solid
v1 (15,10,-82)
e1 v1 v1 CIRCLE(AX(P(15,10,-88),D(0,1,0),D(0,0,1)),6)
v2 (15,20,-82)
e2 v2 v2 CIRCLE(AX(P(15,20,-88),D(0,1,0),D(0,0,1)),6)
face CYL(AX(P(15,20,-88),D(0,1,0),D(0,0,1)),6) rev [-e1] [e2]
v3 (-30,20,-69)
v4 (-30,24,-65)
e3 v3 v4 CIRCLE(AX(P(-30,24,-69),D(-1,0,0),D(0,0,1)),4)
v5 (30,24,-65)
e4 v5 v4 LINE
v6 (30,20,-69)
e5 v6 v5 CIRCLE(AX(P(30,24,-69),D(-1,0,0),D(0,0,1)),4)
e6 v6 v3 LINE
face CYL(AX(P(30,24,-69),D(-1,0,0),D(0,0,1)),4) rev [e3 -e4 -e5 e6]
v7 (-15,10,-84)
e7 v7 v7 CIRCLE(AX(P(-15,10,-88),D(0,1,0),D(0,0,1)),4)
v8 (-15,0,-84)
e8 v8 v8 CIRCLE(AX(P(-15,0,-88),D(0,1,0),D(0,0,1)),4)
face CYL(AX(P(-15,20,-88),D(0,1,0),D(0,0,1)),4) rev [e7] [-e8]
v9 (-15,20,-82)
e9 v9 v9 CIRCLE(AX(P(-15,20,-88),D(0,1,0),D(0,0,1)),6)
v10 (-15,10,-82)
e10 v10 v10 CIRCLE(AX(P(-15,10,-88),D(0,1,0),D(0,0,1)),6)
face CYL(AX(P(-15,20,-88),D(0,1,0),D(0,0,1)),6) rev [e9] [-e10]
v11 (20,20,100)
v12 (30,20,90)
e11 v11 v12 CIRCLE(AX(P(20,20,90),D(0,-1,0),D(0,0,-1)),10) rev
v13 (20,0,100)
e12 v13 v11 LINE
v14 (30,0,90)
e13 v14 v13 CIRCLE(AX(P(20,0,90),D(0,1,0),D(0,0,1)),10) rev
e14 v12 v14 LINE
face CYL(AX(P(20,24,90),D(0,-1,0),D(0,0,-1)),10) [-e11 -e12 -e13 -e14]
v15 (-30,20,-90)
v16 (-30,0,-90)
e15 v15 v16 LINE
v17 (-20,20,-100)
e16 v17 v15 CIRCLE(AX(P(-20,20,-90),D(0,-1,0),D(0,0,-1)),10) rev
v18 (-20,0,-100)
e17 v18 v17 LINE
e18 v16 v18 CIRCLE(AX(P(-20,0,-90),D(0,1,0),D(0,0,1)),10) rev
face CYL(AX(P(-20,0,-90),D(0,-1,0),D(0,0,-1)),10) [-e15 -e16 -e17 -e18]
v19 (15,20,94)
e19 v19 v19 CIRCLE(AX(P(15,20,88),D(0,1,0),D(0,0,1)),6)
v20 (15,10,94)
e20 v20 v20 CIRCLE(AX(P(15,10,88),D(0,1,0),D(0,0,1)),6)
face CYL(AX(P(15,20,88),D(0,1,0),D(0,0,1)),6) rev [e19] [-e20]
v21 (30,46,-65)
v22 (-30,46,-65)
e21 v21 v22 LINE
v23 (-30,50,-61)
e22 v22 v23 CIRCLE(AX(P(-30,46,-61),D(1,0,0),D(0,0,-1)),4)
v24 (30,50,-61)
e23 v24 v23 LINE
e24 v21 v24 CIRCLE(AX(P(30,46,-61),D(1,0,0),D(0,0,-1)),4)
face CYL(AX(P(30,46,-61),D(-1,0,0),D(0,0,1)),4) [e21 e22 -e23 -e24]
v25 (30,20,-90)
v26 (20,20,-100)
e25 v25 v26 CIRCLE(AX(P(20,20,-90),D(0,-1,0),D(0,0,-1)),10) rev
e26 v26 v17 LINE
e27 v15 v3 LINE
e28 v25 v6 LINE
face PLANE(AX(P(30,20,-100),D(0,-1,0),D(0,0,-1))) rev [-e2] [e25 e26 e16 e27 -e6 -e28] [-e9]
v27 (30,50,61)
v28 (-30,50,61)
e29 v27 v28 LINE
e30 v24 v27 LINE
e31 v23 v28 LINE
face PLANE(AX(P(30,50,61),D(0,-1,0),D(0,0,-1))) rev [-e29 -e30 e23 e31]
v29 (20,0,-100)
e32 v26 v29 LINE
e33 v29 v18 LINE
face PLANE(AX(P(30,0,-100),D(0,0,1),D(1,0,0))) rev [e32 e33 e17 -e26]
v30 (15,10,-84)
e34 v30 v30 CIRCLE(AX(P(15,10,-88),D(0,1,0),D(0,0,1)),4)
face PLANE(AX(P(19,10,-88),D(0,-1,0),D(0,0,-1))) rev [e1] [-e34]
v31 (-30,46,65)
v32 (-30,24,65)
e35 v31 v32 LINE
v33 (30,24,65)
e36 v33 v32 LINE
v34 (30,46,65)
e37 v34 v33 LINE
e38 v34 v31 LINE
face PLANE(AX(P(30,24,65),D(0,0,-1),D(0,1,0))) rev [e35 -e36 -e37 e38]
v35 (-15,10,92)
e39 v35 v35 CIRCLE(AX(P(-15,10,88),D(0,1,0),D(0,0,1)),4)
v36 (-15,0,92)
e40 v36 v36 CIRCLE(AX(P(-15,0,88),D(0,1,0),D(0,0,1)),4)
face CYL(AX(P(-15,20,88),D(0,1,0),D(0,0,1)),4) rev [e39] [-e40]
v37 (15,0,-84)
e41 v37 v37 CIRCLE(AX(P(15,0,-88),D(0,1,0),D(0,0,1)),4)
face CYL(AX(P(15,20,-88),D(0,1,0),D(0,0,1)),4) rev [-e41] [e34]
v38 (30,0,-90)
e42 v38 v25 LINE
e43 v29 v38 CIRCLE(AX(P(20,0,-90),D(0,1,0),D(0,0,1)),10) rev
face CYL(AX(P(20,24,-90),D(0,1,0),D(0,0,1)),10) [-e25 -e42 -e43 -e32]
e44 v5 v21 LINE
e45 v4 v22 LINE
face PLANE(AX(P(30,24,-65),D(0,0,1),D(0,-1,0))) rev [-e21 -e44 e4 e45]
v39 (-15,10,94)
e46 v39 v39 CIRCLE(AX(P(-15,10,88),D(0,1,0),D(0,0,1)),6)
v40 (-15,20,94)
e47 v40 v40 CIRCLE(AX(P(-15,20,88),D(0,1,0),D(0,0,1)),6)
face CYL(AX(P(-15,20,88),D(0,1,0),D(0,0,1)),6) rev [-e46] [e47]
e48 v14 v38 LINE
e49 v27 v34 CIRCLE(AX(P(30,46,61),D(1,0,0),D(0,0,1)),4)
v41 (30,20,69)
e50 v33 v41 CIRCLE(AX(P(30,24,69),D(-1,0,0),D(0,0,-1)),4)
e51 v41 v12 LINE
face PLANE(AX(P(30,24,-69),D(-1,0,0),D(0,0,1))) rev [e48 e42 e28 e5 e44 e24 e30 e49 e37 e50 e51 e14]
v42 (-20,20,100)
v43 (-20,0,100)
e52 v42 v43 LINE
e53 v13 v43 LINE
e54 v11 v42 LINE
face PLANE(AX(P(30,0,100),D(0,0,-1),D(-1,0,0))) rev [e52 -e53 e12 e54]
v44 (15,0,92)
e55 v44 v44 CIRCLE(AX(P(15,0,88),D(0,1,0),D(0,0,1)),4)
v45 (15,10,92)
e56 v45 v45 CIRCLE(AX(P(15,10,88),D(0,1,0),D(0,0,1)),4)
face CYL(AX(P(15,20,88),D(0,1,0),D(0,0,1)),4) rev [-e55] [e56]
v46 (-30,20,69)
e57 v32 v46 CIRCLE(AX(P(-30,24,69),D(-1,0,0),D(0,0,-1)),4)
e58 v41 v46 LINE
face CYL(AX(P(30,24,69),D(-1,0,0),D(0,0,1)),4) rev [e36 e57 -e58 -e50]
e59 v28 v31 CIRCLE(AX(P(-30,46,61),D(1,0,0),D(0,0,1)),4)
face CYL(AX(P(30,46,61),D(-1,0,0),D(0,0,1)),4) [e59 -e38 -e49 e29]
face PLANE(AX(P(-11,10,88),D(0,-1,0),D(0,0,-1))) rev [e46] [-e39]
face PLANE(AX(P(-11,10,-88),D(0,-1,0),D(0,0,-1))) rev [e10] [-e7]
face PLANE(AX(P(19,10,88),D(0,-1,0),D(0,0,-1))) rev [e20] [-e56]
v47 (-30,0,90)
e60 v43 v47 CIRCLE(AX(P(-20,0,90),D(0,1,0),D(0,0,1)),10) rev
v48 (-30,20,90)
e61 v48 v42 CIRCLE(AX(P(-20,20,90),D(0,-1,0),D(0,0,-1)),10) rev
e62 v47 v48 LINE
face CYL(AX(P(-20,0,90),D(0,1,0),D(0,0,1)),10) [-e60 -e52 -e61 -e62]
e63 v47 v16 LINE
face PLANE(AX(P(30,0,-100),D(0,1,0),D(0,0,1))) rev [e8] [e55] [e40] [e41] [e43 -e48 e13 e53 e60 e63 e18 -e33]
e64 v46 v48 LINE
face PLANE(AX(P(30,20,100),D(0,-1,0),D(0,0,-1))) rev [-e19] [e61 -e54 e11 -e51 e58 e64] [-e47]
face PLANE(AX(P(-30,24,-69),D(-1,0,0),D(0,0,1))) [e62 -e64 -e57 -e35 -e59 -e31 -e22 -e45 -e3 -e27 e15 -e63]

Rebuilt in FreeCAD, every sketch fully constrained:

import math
import FreeCAD as App
import Part
import Sketcher
Q = App.Units.Quantity


def edges_at(feature, points):
    """Names of the edges that pass closest to the given points."""
    edges = feature.Shape.Edges
    near = lambda p: min(range(len(edges)), key=lambda i: edges[i].distToShape(Part.Vertex(*p))[0])
    return sorted({f"Edge{near(p) + 1}" for p in points})

doc = App.newDocument("Part")
params = doc.addObject("Spreadsheet::Sheet", "Params")
for row, (alias, value) in enumerate([
    ("sketch1_radius", "4 mm"),
    ("sketch1_width", "20 mm"),
    ("sketch1_width2", "22 mm"),
    ("sketch1_height", "200 mm"),
    ("sketch1_height2", "31 mm"),
    ("pad1_length", "60 mm"),
    ("fillet_radius", "10 mm"),
    ("sketch2_diameter", "8 mm"),
    ("hole_diameter", "8 mm"),
    ("hole_cbore_diameter", "12 mm"),
    ("hole_cbore_depth", "10 mm"),
], start=1):
    params.set(f"A{row}", alias)
    params.set(f"B{row}", "=" + value)
    params.setAlias(f"B{row}", alias)

body = doc.addObject("PartDesign::Body", "Body")

sketch1 = body.newObject("Sketcher::SketchObject", "Sketch")
sketch1.AttachmentSupport = (doc.getObject("YZ_Plane"), [""])
sketch1.MapMode = "FlatFace"
sketch1.addGeometry([
    Part.LineSegment(App.Vector(0, 100, 0), App.Vector(0, -100, 0)),
    Part.LineSegment(App.Vector(0, -100, 0), App.Vector(20, -100, 0)),
    Part.LineSegment(App.Vector(20, -100, 0), App.Vector(20, -69, 0)),
    Part.ArcOfCircle(Part.Circle(App.Vector(24, -69, 0), App.Vector(0, 0, 1), 4), math.radians(90), math.radians(180)),
    Part.LineSegment(App.Vector(24, -65, 0), App.Vector(46, -65, 0)),
    Part.ArcOfCircle(Part.Circle(App.Vector(46, -61, 0), App.Vector(0, 0, 1), 4), math.radians(-90), math.radians(0)),
    Part.LineSegment(App.Vector(50, -61, 0), App.Vector(50, 61, 0)),
    Part.ArcOfCircle(Part.Circle(App.Vector(46, 61, 0), App.Vector(0, 0, 1), 4), math.radians(0), math.radians(90)),
    Part.LineSegment(App.Vector(46, 65, 0), App.Vector(24, 65, 0)),
    Part.ArcOfCircle(Part.Circle(App.Vector(24, 69, 0), App.Vector(0, 0, 1), 4), math.radians(180), math.radians(270)),
    Part.LineSegment(App.Vector(20, 69, 0), App.Vector(20, 100, 0)),
    Part.LineSegment(App.Vector(20, 100, 0), App.Vector(0, 100, 0)),
], False)
sketch1.addConstraint([
    Sketcher.Constraint("Coincident", 0, 2, 1, 1),
    Sketcher.Constraint("Coincident", 1, 2, 2, 1),
    Sketcher.Constraint("Tangent", 2, 2, 3, 2),
    Sketcher.Constraint("Tangent", 3, 1, 4, 1),
    Sketcher.Constraint("Tangent", 4, 2, 5, 1),
    Sketcher.Constraint("Tangent", 5, 2, 6, 1),
    Sketcher.Constraint("Tangent", 6, 2, 7, 1),
    Sketcher.Constraint("Tangent", 7, 2, 8, 1),
    Sketcher.Constraint("Tangent", 8, 2, 9, 2),
    Sketcher.Constraint("Tangent", 9, 1, 10, 1),
    Sketcher.Constraint("Coincident", 10, 2, 11, 1),
    Sketcher.Constraint("Coincident", 11, 2, 0, 1),
    Sketcher.Constraint("Vertical", 0),
    Sketcher.Constraint("Horizontal", 1),
    Sketcher.Constraint("Vertical", 2),
    Sketcher.Constraint("Horizontal", 4),
    Sketcher.Constraint("Vertical", 6),
    Sketcher.Constraint("Horizontal", 8),
    Sketcher.Constraint("Vertical", 10),
    Sketcher.Constraint("Horizontal", 11),
    Sketcher.Constraint("Equal", 3, 5),
    Sketcher.Constraint("Equal", 5, 7),
    Sketcher.Constraint("Equal", 7, 9),
    Sketcher.Constraint("Symmetric", 0, 2, 11, 2, -1, 1),
    Sketcher.Constraint("Symmetric", 3, 3, 9, 3, -1),
    Sketcher.Constraint("Radius", 3, Q("4 mm")),
    Sketcher.Constraint("DistanceX", 1, 1, 1, 2, Q("20 mm")),
    Sketcher.Constraint("DistanceX", 4, 1, 4, 2, Q("22 mm")),
    Sketcher.Constraint("DistanceY", 0, 2, 0, 1, Q("200 mm")),
    Sketcher.Constraint("DistanceY", 2, 1, 2, 2, Q("31 mm")),
])
sketch1.setExpression("Constraints[25]", "Params.sketch1_radius")
sketch1.setExpression("Constraints[26]", "Params.sketch1_width")
sketch1.setExpression("Constraints[27]", "Params.sketch1_width2")
sketch1.setExpression("Constraints[28]", "Params.sketch1_height")
sketch1.setExpression("Constraints[29]", "Params.sketch1_height2")
pad1 = body.newObject("PartDesign::Pad", "Pad")
pad1.Profile = sketch1
pad1.setExpression("Length", "Params.pad1_length")
pad1.Midplane = True
doc.recompute()

fillet = body.newObject("PartDesign::Fillet", "Fillet")
fillet.Base = (pad1, edges_at(pad1, [
    (-30, 10, 100),
    (-30, 10, -100),
    (30, 10, 100),
    (30, 10, -100),
]))
fillet.setExpression("Radius", "Params.fillet_radius")

sketch2 = body.newObject("Sketcher::SketchObject", "Sketch001")
sketch2.AttachmentSupport = (doc.getObject("XZ_Plane"), [""])
sketch2.MapMode = "FlatFace"
sketch2.AttachmentOffset = App.Placement(App.Vector(0, 0, -20), App.Rotation())
sketch2.addGeometry([
    Part.Circle(App.Vector(-15, 88, 0), App.Vector(0, 0, 1), 4),
    Part.Circle(App.Vector(15, 88, 0), App.Vector(0, 0, 1), 4),
    Part.Circle(App.Vector(15, -88, 0), App.Vector(0, 0, 1), 4),
    Part.Circle(App.Vector(-15, -88, 0), App.Vector(0, 0, 1), 4),
], False)
sketch2.addConstraint([
    Sketcher.Constraint("Equal", 0, 1),
    Sketcher.Constraint("Equal", 1, 2),
    Sketcher.Constraint("Equal", 2, 3),
    Sketcher.Constraint("Symmetric", 0, 3, 2, 3, -1, 1),
    Sketcher.Constraint("Symmetric", 1, 3, 3, 3, -1, 1),
    Sketcher.Constraint("Symmetric", 0, 3, 1, 3, -2),
    Sketcher.Constraint("Diameter", 0, Q("8 mm")),
    Sketcher.Constraint("DistanceX", 0, 3, -1, 1, Q("15 mm")),
    Sketcher.Constraint("DistanceY", -1, 1, 0, 3, Q("88 mm")),
])
sketch2.setExpression("Constraints[6]", "Params.sketch2_diameter")
doc.recompute()
hole = body.newObject("PartDesign::Hole", "Hole")
hole.Profile = sketch2
hole.ThreadType = "None"
hole.setExpression("Diameter", "Params.hole_diameter")
hole.DepthType = "ThroughAll"
hole.HoleCutType = "Counterbore"
hole.setExpression("HoleCutDiameter", "Params.hole_cbore_diameter")
hole.setExpression("HoleCutDepth", "Params.hole_cbore_depth")
hole.Reversed = True

doc.recompute()
